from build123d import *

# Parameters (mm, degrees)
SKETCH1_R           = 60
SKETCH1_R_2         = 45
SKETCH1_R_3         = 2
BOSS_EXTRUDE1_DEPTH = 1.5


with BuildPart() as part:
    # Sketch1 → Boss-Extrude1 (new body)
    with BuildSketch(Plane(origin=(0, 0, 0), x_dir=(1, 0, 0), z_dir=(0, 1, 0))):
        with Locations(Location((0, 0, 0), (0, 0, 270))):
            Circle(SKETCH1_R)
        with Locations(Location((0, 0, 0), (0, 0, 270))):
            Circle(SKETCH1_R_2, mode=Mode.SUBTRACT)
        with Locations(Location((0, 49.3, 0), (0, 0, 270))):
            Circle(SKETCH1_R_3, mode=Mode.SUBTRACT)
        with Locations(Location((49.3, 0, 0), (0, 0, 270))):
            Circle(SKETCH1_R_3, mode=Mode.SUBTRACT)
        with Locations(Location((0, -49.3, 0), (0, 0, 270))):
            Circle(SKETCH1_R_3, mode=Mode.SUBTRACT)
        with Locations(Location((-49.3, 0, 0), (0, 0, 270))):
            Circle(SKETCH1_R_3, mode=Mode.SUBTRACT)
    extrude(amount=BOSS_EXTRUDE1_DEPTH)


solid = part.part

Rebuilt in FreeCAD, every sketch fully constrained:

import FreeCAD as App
import Part
import Sketcher
Q = App.Units.Quantity

doc = App.newDocument("Part")
params = doc.addObject("Spreadsheet::Sheet", "Params")
for row, (alias, value) in enumerate([
    ("sketch1_diameter", "120 mm"),
    ("sketch1_diameter2", "4 mm"),
    ("sketch1_diameter3", "90 mm"),
    ("pad1_length", "1.5 mm"),
], start=1):
    params.set(f"A{row}", alias)
    params.set(f"B{row}", "=" + value)
    params.setAlias(f"B{row}", alias)

body = doc.addObject("PartDesign::Body", "Body")

sketch1 = body.newObject("Sketcher::SketchObject", "Sketch")
sketch1.AttachmentSupport = (doc.getObject("XZ_Plane"), [""])
sketch1.MapMode = "FlatFace"
sketch1.addGeometry(Part.Circle(App.Vector(0, 0, 0), App.Vector(0, 0, 1), 60), False)
sketch1.addGeometry(Part.Circle(App.Vector(0, -49.3, 0), App.Vector(0, 0, 1), 2), False)
sketch1.addGeometry(Part.Circle(App.Vector(-49.3, 0, 0), App.Vector(0, 0, 1), 2), False)
sketch1.addGeometry(Part.Circle(App.Vector(49.3, 0, 0), App.Vector(0, 0, 1), 2), False)
sketch1.addGeometry(Part.Circle(App.Vector(0, 0, 0), App.Vector(0, 0, 1), 45), False)
sketch1.addGeometry(Part.Circle(App.Vector(0, 49.3, 0), App.Vector(0, 0, 1), 2), False)
sketch1.addConstraint(Sketcher.Constraint("Coincident", 0, 3, -1, 1))
sketch1.addConstraint(Sketcher.Constraint("Coincident", 4, 3, -1, 1))
sketch1.addConstraint(Sketcher.Constraint("Equal", 1, 2))
sketch1.addConstraint(Sketcher.Constraint("Equal", 2, 3))
sketch1.addConstraint(Sketcher.Constraint("Equal", 3, 5))
sketch1.addConstraint(Sketcher.Constraint("Symmetric", 2, 3, 3, 3, -1, 1))
sketch1.addConstraint(Sketcher.Constraint("Symmetric", 1, 3, 5, 3, -1, 1))
sketch1.addConstraint(Sketcher.Constraint("PointOnObject", 1, 3, -2))
sketch1.addConstraint(Sketcher.Constraint("PointOnObject", 2, 3, -1))
sketch1.addConstraint(Sketcher.Constraint("Diameter", 0, Q("120 mm")))
sketch1.addConstraint(Sketcher.Constraint("Diameter", 1, Q("4 mm")))
sketch1.addConstraint(Sketcher.Constraint("Diameter", 4, Q("90 mm")))
sketch1.addConstraint(Sketcher.Constraint("DistanceY", 1, 3, -1, 1, Q("49.3 mm")))
sketch1.addConstraint(Sketcher.Constraint("DistanceX", 2, 3, -1, 1, Q("49.3 mm")))
sketch1.setExpression("Constraints[9]", "Params.sketch1_diameter")
sketch1.setExpression("Constraints[10]", "Params.sketch1_diameter2")
sketch1.setExpression("Constraints[11]", "Params.sketch1_diameter3")
pad1 = body.newObject("PartDesign::Pad", "Pad")
pad1.Profile = sketch1
pad1.setExpression("Length", "Params.pad1_length")
pad1.Reversed = True

doc.recompute()
